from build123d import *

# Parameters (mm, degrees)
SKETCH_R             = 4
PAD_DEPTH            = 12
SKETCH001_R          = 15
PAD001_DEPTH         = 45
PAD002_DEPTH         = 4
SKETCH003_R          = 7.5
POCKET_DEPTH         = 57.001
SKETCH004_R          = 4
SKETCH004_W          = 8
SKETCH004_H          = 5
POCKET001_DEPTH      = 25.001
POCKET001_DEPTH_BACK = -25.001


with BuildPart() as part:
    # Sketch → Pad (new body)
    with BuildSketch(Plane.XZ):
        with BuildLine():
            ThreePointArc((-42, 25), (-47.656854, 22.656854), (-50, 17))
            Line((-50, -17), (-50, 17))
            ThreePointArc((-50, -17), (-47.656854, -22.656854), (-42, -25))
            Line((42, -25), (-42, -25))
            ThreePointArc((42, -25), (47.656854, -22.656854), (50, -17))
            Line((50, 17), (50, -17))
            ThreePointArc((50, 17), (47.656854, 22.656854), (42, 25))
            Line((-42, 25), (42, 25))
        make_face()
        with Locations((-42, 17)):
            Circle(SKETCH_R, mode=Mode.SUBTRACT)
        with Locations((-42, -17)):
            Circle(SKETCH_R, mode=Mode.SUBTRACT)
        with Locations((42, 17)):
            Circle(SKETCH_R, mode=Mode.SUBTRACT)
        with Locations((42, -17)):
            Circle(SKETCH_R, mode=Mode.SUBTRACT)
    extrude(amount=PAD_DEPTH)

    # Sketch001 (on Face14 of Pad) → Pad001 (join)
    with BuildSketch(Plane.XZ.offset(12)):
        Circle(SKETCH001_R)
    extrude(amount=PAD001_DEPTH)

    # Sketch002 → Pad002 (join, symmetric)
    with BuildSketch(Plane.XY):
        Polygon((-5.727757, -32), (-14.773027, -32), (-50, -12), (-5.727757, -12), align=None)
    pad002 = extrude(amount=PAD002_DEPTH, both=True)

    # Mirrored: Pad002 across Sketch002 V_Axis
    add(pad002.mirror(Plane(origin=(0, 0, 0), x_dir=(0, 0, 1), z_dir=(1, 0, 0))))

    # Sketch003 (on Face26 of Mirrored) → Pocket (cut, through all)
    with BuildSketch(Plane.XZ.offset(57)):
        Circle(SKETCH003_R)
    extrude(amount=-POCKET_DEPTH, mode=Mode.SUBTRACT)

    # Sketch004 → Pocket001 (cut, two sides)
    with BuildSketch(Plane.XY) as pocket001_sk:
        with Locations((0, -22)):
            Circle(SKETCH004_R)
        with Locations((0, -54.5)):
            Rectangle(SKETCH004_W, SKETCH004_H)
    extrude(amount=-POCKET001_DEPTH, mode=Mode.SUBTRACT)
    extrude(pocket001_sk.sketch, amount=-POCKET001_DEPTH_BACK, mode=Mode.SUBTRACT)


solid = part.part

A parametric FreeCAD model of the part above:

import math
import FreeCAD as App
import Part
import Sketcher

V = App.Vector

doc = App.newDocument("Part")
body = doc.addObject("PartDesign::Body", "Body")

sketch1 = body.newObject("Sketcher::SketchObject", "Sketch")
sketch1.AttachmentSupport = (doc.getObject("XZ_Plane"), [""])
sketch1.MapMode = "FlatFace"
sketch1.addGeometry([
    Part.ArcOfCircle(Part.Circle(V(-41.999999, 16.999999, 0), V(0, 0, 1), 8.000001), math.radians(90.000006), math.radians(179.999994)),
    Part.LineSegment(V(-50, 17, 0), V(-50, -17, 0)),
    Part.ArcOfCircle(Part.Circle(V(-41.999999, -16.999999, 0), V(0, 0, 1), 8.000001), math.radians(-179.999994), math.radians(-90.000006)),
    Part.LineSegment(V(-42, -25, 0), V(42, -25, 0)),
    Part.ArcOfCircle(Part.Circle(V(41.999999, -16.999999, 0), V(0, 0, 1), 8.000001), math.radians(-89.999994), math.radians(-0.000006)),
    Part.LineSegment(V(50, -17, 0), V(50, 17, 0)),
    Part.ArcOfCircle(Part.Circle(V(41.999999, 16.999999, 0), V(0, 0, 1), 8.000001), math.radians(0.000006), math.radians(89.999994)),
    Part.LineSegment(V(42, 25, 0), V(-42, 25, 0)),
    Part.Circle(V(-42, -17, 0), V(0, 0, 1), 4),
    Part.Circle(V(42, -17, 0), V(0, 0, 1), 4),
    Part.Circle(V(-42, 17, 0), V(0, 0, 1), 4),
    Part.Circle(V(42, 17, 0), V(0, 0, 1), 4),
], False)
sketch1.addConstraint([
    Sketcher.Constraint("Tangent", 0, 2, 1, 1),
    Sketcher.Constraint("Tangent", 1, 2, 2, 1),
    Sketcher.Constraint("Tangent", 2, 2, 3, 1),
    Sketcher.Constraint("Tangent", 3, 2, 4, 1),
    Sketcher.Constraint("Tangent", 4, 2, 5, 1),
    Sketcher.Constraint("Tangent", 5, 2, 6, 1),
    Sketcher.Constraint("Tangent", 6, 2, 7, 1),
    Sketcher.Constraint("Tangent", 7, 2, 0, 1),
    Sketcher.Constraint("Vertical", 1),
    Sketcher.Constraint("Horizontal", 3),
    Sketcher.Constraint("Vertical", 5),
    Sketcher.Constraint("Horizontal", 7),
    Sketcher.Constraint("Coincident", 8, 3, 2, 3),
    Sketcher.Constraint("Coincident", 9, 3, 4, 3),
    Sketcher.Constraint("Coincident", 10, 3, 0, 3),
    Sketcher.Constraint("Coincident", 11, 3, 6, 3),
    Sketcher.Constraint("Equal", 0, 2),
    Sketcher.Constraint("Equal", 2, 4),
    Sketcher.Constraint("Equal", 4, 6),
    Sketcher.Constraint("Equal", 8, 9),
    Sketcher.Constraint("Equal", 9, 10),
    Sketcher.Constraint("Equal", 10, 11),
    Sketcher.Constraint("Symmetric", 0, 3, 4, 3, -1, 1),
    Sketcher.Constraint("Diameter", 8, 8.0),
    Sketcher.Constraint("Radius", 0, 8.000001),
    Sketcher.Constraint("DistanceX", 3, 1, 3, 2, 84.0),
    Sketcher.Constraint("DistanceY", 1, 2, 1, 1, 34.0),
])
pad1 = body.newObject("PartDesign::Pad", "Pad")
pad1.Profile = sketch1
pad1.Length = 12

sketch2 = body.newObject("Sketcher::SketchObject", "Sketch001")
sketch2.AttachmentSupport = (doc.getObject("XZ_Plane"), [""])
sketch2.MapMode = "FlatFace"
sketch2.AttachmentOffset = App.Placement(V(0, 0, 12), App.Rotation())
sketch2.addGeometry(Part.Circle(V(0, 0, 0), V(0, 0, 1), 15), False)
sketch2.addConstraint([
    Sketcher.Constraint("Coincident", 0, 3, -1, 1),
    Sketcher.Constraint("Diameter", 0, 30.0),
])
pad2 = body.newObject("PartDesign::Pad", "Pad001")
pad2.Profile = sketch2
pad2.Length = 45

sketch3 = body.newObject("Sketcher::SketchObject", "Sketch002")
sketch3.AttachmentSupport = (doc.getObject("XY_Plane"), [""])
sketch3.MapMode = "FlatFace"
sketch3.addGeometry([
    Part.LineSegment(V(-14.773027, -32, 0), V(-5.727757, -32, 0)),
    Part.LineSegment(V(-5.727757, -32, 0), V(-5.727757, -12, 0)),
    Part.LineSegment(V(-5.727757, -12, 0), V(-50, -12, 0)),
    Part.LineSegment(V(-50, -12, 0), V(-14.773027, -32, 0)),
], False)
sketch3.addConstraint([
    Sketcher.Constraint("Coincident", 0, 2, 1, 1),
    Sketcher.Constraint("Coincident", 1, 2, 2, 1),
    Sketcher.Constraint("Coincident", 2, 2, 3, 1),
    Sketcher.Constraint("Coincident", 3, 2, 0, 1),
    Sketcher.Constraint("Horizontal", 0),
    Sketcher.Constraint("Vertical", 1),
    Sketcher.Constraint("Horizontal", 2),
    Sketcher.Constraint("DistanceY", 1, 1, 1, 2, 20.0),
    Sketcher.Constraint("DistanceY", 0, 2, -1, 1, 32.0),
    Sketcher.Constraint("DistanceX", 2, 2, -1, 1, 50.0),
    Sketcher.Constraint("DistanceX", 0, 1, 0, 2, 9.04527),
    Sketcher.Constraint("DistanceX", 2, 2, 2, 1, 44.272243),
])
pad3 = body.newObject("PartDesign::Pad", "Pad002")
pad3.Profile = sketch3
pad3.Length = 8
pad3.Midplane = True
doc.recompute()

mirrored = body.newObject("PartDesign::Mirrored", "Mirrored")
mirrored.Originals = [pad3]
mirrored.MirrorPlane = (doc.getObject("YZ_Plane"), [""])
body.Tip = mirrored

sketch4 = body.newObject("Sketcher::SketchObject", "Sketch003")
sketch4.AttachmentSupport = (doc.getObject("XZ_Plane"), [""])
sketch4.MapMode = "FlatFace"
sketch4.AttachmentOffset = App.Placement(V(0, 0, 57), App.Rotation())
sketch4.addGeometry(Part.Circle(V(0, 0, 0), V(0, 0, 1), 7.5), False)
sketch4.addConstraint([
    Sketcher.Constraint("Coincident", 0, 3, -1, 1),
    Sketcher.Constraint("Diameter", 0, 15.0),
])
pocket1 = body.newObject("PartDesign::Pocket", "Pocket")
pocket1.Profile = sketch4
pocket1.Type = "ThroughAll"

sketch5 = body.newObject("Sketcher::SketchObject", "Sketch004")
sketch5.AttachmentSupport = (doc.getObject("XY_Plane"), [""])
sketch5.MapMode = "FlatFace"
sketch5.addGeometry([
    Part.Circle(V(0, -22, 0), V(0, 0, 1), 4),
    Part.LineSegment(V(-4, -52, 0), V(-4, -57, 0)),
    Part.LineSegment(V(-4, -57, 0), V(4, -57, 0)),
    Part.LineSegment(V(4, -57, 0), V(4, -52, 0)),
    Part.LineSegment(V(4, -52, 0), V(-4, -52, 0)),
], False)
sketch5.addConstraint([
    Sketcher.Constraint("Coincident", 1, 2, 2, 1),
    Sketcher.Constraint("Coincident", 2, 2, 3, 1),
    Sketcher.Constraint("Coincident", 3, 2, 4, 1),
    Sketcher.Constraint("Coincident", 4, 2, 1, 1),
    Sketcher.Constraint("Vertical", 1),
    Sketcher.Constraint("Horizontal", 2),
    Sketcher.Constraint("Vertical", 3),
    Sketcher.Constraint("Horizontal", 4),
    Sketcher.Constraint("PointOnObject", 0, 3, -2),
    Sketcher.Constraint("Diameter", 0, 8.0),
    Sketcher.Constraint("DistanceX", 2, 1, 2, 2, 8.0),
    Sketcher.Constraint("DistanceY", 1, 2, 1, 1, 5.0),
    Sketcher.Constraint("DistanceY", 0, 3, -1, 1, 22.0),
    Sketcher.Constraint("DistanceX", 1, 2, -1, 1, 4.0),
    Sketcher.Constraint("DistanceY", 1, 2, -1, 1, 57.0),
])
pocket2 = body.newObject("PartDesign::Pocket", "Pocket001")
pocket2.Profile = sketch5
pocket2.Type = "ThroughAll"
pocket2.Midplane = True

doc.recompute()
